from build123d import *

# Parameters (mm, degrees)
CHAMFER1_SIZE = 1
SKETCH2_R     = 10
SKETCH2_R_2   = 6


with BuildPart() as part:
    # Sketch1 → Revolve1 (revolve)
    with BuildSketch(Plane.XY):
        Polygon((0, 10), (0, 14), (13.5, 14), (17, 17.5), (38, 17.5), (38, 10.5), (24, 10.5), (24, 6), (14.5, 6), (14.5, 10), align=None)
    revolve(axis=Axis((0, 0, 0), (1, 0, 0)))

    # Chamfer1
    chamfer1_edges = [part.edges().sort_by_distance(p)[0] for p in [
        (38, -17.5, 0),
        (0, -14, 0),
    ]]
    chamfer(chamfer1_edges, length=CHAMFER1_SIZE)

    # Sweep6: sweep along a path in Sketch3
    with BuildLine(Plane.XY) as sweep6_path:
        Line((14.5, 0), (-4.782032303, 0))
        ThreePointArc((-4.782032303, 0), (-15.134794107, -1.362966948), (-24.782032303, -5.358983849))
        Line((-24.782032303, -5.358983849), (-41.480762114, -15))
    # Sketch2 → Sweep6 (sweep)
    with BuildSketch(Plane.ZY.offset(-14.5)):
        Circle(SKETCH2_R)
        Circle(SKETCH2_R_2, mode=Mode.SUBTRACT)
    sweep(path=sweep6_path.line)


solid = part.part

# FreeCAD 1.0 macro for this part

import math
import FreeCAD as App
import Part
import Sketcher
from FreeCAD import Vector
Q = App.Units.Quantity


def edges_at(feature, points):
    """Names of the edges that pass closest to the given points."""
    edges = feature.Shape.Edges
    near = lambda p: min(range(len(edges)), key=lambda i: edges[i].distToShape(Part.Vertex(*p))[0])
    return sorted({f"Edge{near(p) + 1}" for p in points})

doc = App.newDocument("Part")
body = doc.addObject("PartDesign::Body", "Body")

# Sketch on XY plane
sketch1 = doc.addObject("Sketcher::SketchObject", "Sketch")
body.addObject(sketch1)
sketch1.AttachmentSupport = (doc.XY_Plane, [""])
sketch1.MapMode = "FlatFace"
sketch1.addGeometry([
    Part.LineSegment(Vector(0, 14, 0), Vector(0, 10, 0)),  # 0
    Part.LineSegment(Vector(0, 10, 0), Vector(14.5, 10, 0)),  # 1
    Part.LineSegment(Vector(14.5, 10, 0), Vector(14.5, 6, 0)),  # 2
    Part.LineSegment(Vector(14.5, 6, 0), Vector(24, 6, 0)),  # 3
    Part.LineSegment(Vector(24, 6, 0), Vector(24, 10.5, 0)),  # 4
    Part.LineSegment(Vector(24, 10.5, 0), Vector(38, 10.5, 0)),  # 5
    Part.LineSegment(Vector(38, 10.5, 0), Vector(38, 17.5, 0)),  # 6
    Part.LineSegment(Vector(38, 17.5, 0), Vector(17, 17.5, 0)),  # 7
    Part.LineSegment(Vector(17, 17.5, 0), Vector(13.5, 14, 0)),  # 8
    Part.LineSegment(Vector(13.5, 14, 0), Vector(0, 14, 0)),  # 9
], False)
sketch1.addConstraint([
    Sketcher.Constraint("Coincident", 0, 2, 1, 1),
    Sketcher.Constraint("Coincident", 1, 2, 2, 1),
    Sketcher.Constraint("Coincident", 2, 2, 3, 1),
    Sketcher.Constraint("Coincident", 3, 2, 4, 1),
    Sketcher.Constraint("Coincident", 4, 2, 5, 1),
    Sketcher.Constraint("Coincident", 5, 2, 6, 1),
    Sketcher.Constraint("Coincident", 6, 2, 7, 1),
    Sketcher.Constraint("Coincident", 7, 2, 8, 1),
    Sketcher.Constraint("Coincident", 8, 2, 9, 1),
    Sketcher.Constraint("Coincident", 9, 2, 0, 1),
    Sketcher.Constraint("Vertical", 0),
    Sketcher.Constraint("Horizontal", 1),
    Sketcher.Constraint("Vertical", 2),
    Sketcher.Constraint("Horizontal", 3),
    Sketcher.Constraint("Vertical", 4),
    Sketcher.Constraint("Horizontal", 5),
    Sketcher.Constraint("Vertical", 6),
    Sketcher.Constraint("Horizontal", 7),
    Sketcher.Constraint("Horizontal", 9),
    Sketcher.Constraint("PointOnObject", 0, 2, -2),
    Sketcher.Constraint("Equal", 0, 2),
    Sketcher.Constraint("DistanceX", 5, 1, 5, 2, 14.0),
    Sketcher.Constraint("DistanceX", 7, 2, 7, 1, 21.0),
    Sketcher.Constraint("DistanceY", 0, 2, 0, 1, 4.0),
    Sketcher.Constraint("DistanceY", 6, 1, 6, 2, 7.0),
    Sketcher.Constraint("Angle", 8, Q("-135 deg")),
    Sketcher.Constraint("DistanceX", 1, 1, 1, 2, 14.5),
    Sketcher.Constraint("DistanceX", 3, 1, 3, 2, 9.5),
    Sketcher.Constraint("DistanceX", 9, 2, 9, 1, 13.5),
    Sketcher.Constraint("DistanceY", -1, 1, 0, 2, 10.0),
])
revolution = doc.addObject("PartDesign::Revolution", "Revolution")
body.addObject(revolution)
revolution.Profile = sketch1
revolution.ReferenceAxis = (sketch1, ["H_Axis"])
revolution.Angle = 360
doc.recompute()

chamfer = doc.addObject("PartDesign::Chamfer", "Chamfer")
body.addObject(chamfer)
chamfer.Base = (revolution, edges_at(revolution, [(38, -17.5, 0), (0, -14, 0)]))
chamfer.Size = 1

# Sketch on YZ plane
sketch2 = doc.addObject("Sketcher::SketchObject", "Sketch001")
body.addObject(sketch2)
sketch2.AttachmentSupport = (doc.YZ_Plane, [""])
sketch2.MapMode = "FlatFace"
sketch2.AttachmentOffset = App.Placement(Vector(0, 0, 14.5), App.Rotation())
sketch2.addGeometry([
    Part.Circle(Vector(0, 0, 0), Vector(0, 0, 1), 10),
    Part.Circle(Vector(0, 0, 0), Vector(0, 0, 1), 6),
], False)
sketch2.addConstraint([
    Sketcher.Constraint("Coincident", 0, 3, -1, 1),
    Sketcher.Constraint("Coincident", 1, 3, -1, 1),
    Sketcher.Constraint("Diameter", 0, 20.0),
    Sketcher.Constraint("Diameter", 1, 12.0),
])

# Sketch on XY plane
sketch3 = doc.addObject("Sketcher::SketchObject", "Sketch002")
body.addObject(sketch3)
sketch3.AttachmentSupport = (doc.XY_Plane, [""])
sketch3.MapMode = "FlatFace"
sketch3.addGeometry([
    Part.LineSegment(Vector(14, 0, 0), Vector(-5, 0, 0)),
    Part.ArcOfCircle(Part.Circle(Vector(-5, -40, 0), Vector(0, 0, 1), 40), math.radians(90), math.radians(120)),
    Part.LineSegment(Vector(-25, -5, 0), Vector(-41, -15, 0)),
], False)
sketch3.addConstraint([
    Sketcher.Constraint("Tangent", 0, 2, 1, 1),
    Sketcher.Constraint("Tangent", 1, 2, 2, 1),
    Sketcher.Constraint("Horizontal", 0),
    Sketcher.Constraint("PointOnObject", 0, 1, -1),
    Sketcher.Constraint("Radius", 1, 40.0),
    Sketcher.Constraint("Angle", 2, Q("-150 deg")),
    Sketcher.Constraint("DistanceY", 2, 2, -1, 1, 15.0),
    Sketcher.Constraint("DistanceX", -1, 1, 0, 1, 14.5),
    Sketcher.Constraint("DistanceX", 0, 2, 0, 1, 19.282032),
])
doc.recompute()

additivepipe = doc.addObject("PartDesign::AdditivePipe", "AdditivePipe")
body.addObject(additivepipe)
additivepipe.Profile = sketch2
additivepipe.Spine = (sketch3, ["Edge1", "Edge2", "Edge3"])

doc.recompute()
